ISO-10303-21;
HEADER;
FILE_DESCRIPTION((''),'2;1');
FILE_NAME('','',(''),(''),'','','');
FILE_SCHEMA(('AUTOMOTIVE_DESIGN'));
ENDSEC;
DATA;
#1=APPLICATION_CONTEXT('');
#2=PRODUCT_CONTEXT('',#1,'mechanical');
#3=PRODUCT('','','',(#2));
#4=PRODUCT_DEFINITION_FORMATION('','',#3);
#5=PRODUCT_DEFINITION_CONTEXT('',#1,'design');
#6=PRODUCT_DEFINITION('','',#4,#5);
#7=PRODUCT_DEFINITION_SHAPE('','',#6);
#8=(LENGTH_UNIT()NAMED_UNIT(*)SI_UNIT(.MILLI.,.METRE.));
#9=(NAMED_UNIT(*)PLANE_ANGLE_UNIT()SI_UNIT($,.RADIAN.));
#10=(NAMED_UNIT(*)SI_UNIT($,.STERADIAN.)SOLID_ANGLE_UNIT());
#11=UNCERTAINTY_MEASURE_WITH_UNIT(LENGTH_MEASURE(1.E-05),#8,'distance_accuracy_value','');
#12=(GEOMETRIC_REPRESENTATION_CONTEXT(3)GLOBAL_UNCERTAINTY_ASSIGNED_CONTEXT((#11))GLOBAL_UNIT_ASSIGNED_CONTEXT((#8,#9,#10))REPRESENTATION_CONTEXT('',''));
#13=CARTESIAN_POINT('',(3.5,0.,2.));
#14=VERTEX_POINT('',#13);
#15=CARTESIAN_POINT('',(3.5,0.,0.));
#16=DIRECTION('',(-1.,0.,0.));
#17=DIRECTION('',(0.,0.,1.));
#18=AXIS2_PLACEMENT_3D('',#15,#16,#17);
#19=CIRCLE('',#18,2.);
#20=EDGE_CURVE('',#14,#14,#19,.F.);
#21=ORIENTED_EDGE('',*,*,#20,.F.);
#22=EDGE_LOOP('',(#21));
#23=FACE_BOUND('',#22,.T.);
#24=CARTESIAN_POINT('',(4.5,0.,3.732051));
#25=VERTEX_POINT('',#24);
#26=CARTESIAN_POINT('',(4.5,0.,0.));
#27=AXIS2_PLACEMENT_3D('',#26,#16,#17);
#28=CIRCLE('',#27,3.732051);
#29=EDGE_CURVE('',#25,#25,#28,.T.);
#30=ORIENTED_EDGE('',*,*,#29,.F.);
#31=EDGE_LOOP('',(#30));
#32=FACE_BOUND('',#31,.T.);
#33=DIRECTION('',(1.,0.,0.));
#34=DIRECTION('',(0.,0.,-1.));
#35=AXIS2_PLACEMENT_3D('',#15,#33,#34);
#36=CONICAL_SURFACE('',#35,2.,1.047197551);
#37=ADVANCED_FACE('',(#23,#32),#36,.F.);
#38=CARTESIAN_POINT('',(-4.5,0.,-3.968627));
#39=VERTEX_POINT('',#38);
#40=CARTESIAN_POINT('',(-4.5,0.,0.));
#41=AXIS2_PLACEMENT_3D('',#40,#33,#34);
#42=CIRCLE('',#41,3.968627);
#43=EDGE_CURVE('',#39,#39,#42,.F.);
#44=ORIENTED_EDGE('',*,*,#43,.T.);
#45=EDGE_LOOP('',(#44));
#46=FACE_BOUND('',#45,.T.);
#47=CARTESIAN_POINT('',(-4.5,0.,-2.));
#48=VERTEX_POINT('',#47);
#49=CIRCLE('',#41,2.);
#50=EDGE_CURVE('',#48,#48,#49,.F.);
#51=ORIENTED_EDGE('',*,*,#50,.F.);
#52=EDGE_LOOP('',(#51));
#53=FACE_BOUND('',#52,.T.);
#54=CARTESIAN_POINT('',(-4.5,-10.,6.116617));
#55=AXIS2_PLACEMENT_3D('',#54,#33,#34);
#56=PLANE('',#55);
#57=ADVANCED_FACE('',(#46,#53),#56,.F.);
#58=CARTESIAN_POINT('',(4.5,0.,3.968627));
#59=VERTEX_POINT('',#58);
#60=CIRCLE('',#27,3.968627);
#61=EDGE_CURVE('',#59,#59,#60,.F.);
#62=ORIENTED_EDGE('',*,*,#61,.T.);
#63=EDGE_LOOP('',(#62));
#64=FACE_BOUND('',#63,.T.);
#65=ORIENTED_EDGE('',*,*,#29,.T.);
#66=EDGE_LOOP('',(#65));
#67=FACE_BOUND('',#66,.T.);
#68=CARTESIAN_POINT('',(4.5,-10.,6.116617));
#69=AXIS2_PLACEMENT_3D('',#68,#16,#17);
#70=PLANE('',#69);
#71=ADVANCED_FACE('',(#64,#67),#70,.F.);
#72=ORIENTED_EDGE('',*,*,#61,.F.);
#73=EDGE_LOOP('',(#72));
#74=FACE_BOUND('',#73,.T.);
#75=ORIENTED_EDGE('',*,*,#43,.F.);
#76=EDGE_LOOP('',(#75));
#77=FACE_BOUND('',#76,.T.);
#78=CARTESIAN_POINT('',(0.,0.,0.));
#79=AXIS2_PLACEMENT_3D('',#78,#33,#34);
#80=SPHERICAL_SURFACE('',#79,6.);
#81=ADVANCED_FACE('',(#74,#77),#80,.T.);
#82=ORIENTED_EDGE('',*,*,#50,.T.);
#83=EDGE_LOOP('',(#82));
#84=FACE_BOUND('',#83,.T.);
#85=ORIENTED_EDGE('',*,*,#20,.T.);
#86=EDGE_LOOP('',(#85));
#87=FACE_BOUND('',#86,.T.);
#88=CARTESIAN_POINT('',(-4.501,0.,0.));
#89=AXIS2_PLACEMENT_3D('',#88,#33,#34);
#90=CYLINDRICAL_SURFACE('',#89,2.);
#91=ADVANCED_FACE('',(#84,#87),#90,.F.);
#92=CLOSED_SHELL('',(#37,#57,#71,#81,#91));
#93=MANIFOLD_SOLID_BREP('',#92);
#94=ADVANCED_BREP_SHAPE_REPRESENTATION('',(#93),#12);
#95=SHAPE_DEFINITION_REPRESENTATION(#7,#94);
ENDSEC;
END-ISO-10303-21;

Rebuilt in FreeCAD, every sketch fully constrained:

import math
import FreeCAD as App
import Part
import Sketcher
from FreeCAD import Vector


def edges_at(feature, points):
    """Names of the edges that pass closest to the given points."""
    edges = feature.Shape.Edges
    near = lambda p: min(range(len(edges)), key=lambda i: edges[i].distToShape(Part.Vertex(*p))[0])
    return sorted({f"Edge{near(p) + 1}" for p in points})

doc = App.newDocument("Part")
body = doc.addObject("PartDesign::Body", "Body")

sketch1 = doc.addObject("Sketcher::SketchObject", "Sketch")
body.addObject(sketch1)
sketch1.AttachmentSupport = (doc.XZ_Plane, [""])
sketch1.MapMode = "FlatFace"
sketch1.addGeometry(Part.LineSegment(Vector(0, 6, 0), Vector(0, -6, 0)), False)
sketch1.addGeometry(Part.ArcOfCircle(Part.Circle(Vector(0, 0, 0), Vector(0, 0, 1), 6), math.radians(90), math.radians(270)), False)
sketch1.addConstraint(Sketcher.Constraint("Coincident", 0, 1, 1, 1))
sketch1.addConstraint(Sketcher.Constraint("Coincident", 1, 2, 0, 2))
sketch1.addConstraint(Sketcher.Constraint("Vertical", 0))
sketch1.addConstraint(Sketcher.Constraint("Coincident", 1, 3, -1, 1))
sketch1.addConstraint(Sketcher.Constraint("PointOnObject", 0, 1, -2))
sketch1.addConstraint(Sketcher.Constraint("Radius", 1, 6.0))
revolution = doc.addObject("PartDesign::Revolution", "Revolution")
body.addObject(revolution)
revolution.Profile = sketch1
revolution.ReferenceAxis = (sketch1, ["V_Axis"])
revolution.Angle = 360

sketch2 = doc.addObject("Sketcher::SketchObject", "Sketch001")
body.addObject(sketch2)
sketch2.AttachmentSupport = (doc.XZ_Plane, [""])
sketch2.MapMode = "FlatFace"
sketch2.addGeometry(Part.LineSegment(Vector(-4.5, -6.116617, 0), Vector(-8.039926, 0.619091, 0)), False)
sketch2.addGeometry(Part.LineSegment(Vector(-8.039926, 0.619091, 0), Vector(-4.5, 6.116617, 0)), False)
sketch2.addGeometry(Part.LineSegment(Vector(-4.5, 6.116617, 0), Vector(-4.5, -6.116617, 0)), False)
sketch2.addGeometry(Part.LineSegment(Vector(4.5, -6.116617, 0), Vector(4.5, 6.116617, 0)), False)
sketch2.addGeometry(Part.LineSegment(Vector(4.5, 6.116617, 0), Vector(7.115417, 1.229927, 0)), False)
sketch2.addGeometry(Part.LineSegment(Vector(7.115417, 1.229927, 0), Vector(4.5, -6.116617, 0)), False)
sketch2.addConstraint(Sketcher.Constraint("Coincident", 0, 2, 1, 1))
sketch2.addConstraint(Sketcher.Constraint("Coincident", 1, 2, 2, 1))
sketch2.addConstraint(Sketcher.Constraint("Coincident", 2, 2, 0, 1))
sketch2.addConstraint(Sketcher.Constraint("Coincident", 3, 2, 4, 1))
sketch2.addConstraint(Sketcher.Constraint("Coincident", 4, 2, 5, 1))
sketch2.addConstraint(Sketcher.Constraint("Coincident", 5, 2, 3, 1))
sketch2.addConstraint(Sketcher.Constraint("Vertical", 2))
sketch2.addConstraint(Sketcher.Constraint("Vertical", 3))
sketch2.addConstraint(Sketcher.Constraint("Symmetric", 2, 2, 3, 2, -1, 1))
sketch2.addConstraint(Sketcher.Constraint("Horizontal", 1, 2, 3, 2))
sketch2.addConstraint(Sketcher.Constraint("Horizontal", 2, 2, 5, 2))
sketch2.addConstraint(Sketcher.Constraint("DistanceX", 1, 2, 3, 2, 9.0))
sketch2.addConstraint(Sketcher.Constraint("Distance", 0, 7.60926))
sketch2.addConstraint(Sketcher.Constraint("DistanceY", 2, 2, 2, 1, 12.233235))
sketch2.addConstraint(Sketcher.Constraint("DistanceY", -1, 1, 0, 2, 0.619091))
sketch2.addConstraint(Sketcher.Constraint("DistanceY", 4, 2, 3, 2, 4.88669))
sketch2.addConstraint(Sketcher.Constraint("Distance", 4, 5.542576))
pocket1 = doc.addObject("PartDesign::Pocket", "Pocket")
body.addObject(pocket1)
pocket1.Profile = sketch2
pocket1.Length = 20
pocket1.Midplane = True

sketch3 = doc.addObject("Sketcher::SketchObject", "Sketch002")
body.addObject(sketch3)
sketch3.AttachmentSupport = (doc.YZ_Plane, [""])
sketch3.MapMode = "FlatFace"
sketch3.AttachmentOffset = App.Placement(Vector(0, 0, 4.5), App.Rotation())
sketch3.addGeometry(Part.Circle(Vector(0, 0, 0), Vector(0, 0, 1), 2), False)
sketch3.addConstraint(Sketcher.Constraint("Coincident", 0, 3, -1, 1))
sketch3.addConstraint(Sketcher.Constraint("Diameter", 0, 4.0))
pocket2 = doc.addObject("PartDesign::Pocket", "Pocket001")
body.addObject(pocket2)
pocket2.Profile = sketch3
pocket2.Type = "UpToFirst"
doc.recompute()

chamfer = doc.addObject("PartDesign::Chamfer", "Chamfer")
body.addObject(chamfer)
chamfer.Base = (pocket2, edges_at(pocket2, [(4.5, 0, 2)]))
chamfer.ChamferType = "Two distances"
chamfer.Size = 1
chamfer.Size2 = 1.732051
chamfer.FlipDirection = True

doc.recompute()
